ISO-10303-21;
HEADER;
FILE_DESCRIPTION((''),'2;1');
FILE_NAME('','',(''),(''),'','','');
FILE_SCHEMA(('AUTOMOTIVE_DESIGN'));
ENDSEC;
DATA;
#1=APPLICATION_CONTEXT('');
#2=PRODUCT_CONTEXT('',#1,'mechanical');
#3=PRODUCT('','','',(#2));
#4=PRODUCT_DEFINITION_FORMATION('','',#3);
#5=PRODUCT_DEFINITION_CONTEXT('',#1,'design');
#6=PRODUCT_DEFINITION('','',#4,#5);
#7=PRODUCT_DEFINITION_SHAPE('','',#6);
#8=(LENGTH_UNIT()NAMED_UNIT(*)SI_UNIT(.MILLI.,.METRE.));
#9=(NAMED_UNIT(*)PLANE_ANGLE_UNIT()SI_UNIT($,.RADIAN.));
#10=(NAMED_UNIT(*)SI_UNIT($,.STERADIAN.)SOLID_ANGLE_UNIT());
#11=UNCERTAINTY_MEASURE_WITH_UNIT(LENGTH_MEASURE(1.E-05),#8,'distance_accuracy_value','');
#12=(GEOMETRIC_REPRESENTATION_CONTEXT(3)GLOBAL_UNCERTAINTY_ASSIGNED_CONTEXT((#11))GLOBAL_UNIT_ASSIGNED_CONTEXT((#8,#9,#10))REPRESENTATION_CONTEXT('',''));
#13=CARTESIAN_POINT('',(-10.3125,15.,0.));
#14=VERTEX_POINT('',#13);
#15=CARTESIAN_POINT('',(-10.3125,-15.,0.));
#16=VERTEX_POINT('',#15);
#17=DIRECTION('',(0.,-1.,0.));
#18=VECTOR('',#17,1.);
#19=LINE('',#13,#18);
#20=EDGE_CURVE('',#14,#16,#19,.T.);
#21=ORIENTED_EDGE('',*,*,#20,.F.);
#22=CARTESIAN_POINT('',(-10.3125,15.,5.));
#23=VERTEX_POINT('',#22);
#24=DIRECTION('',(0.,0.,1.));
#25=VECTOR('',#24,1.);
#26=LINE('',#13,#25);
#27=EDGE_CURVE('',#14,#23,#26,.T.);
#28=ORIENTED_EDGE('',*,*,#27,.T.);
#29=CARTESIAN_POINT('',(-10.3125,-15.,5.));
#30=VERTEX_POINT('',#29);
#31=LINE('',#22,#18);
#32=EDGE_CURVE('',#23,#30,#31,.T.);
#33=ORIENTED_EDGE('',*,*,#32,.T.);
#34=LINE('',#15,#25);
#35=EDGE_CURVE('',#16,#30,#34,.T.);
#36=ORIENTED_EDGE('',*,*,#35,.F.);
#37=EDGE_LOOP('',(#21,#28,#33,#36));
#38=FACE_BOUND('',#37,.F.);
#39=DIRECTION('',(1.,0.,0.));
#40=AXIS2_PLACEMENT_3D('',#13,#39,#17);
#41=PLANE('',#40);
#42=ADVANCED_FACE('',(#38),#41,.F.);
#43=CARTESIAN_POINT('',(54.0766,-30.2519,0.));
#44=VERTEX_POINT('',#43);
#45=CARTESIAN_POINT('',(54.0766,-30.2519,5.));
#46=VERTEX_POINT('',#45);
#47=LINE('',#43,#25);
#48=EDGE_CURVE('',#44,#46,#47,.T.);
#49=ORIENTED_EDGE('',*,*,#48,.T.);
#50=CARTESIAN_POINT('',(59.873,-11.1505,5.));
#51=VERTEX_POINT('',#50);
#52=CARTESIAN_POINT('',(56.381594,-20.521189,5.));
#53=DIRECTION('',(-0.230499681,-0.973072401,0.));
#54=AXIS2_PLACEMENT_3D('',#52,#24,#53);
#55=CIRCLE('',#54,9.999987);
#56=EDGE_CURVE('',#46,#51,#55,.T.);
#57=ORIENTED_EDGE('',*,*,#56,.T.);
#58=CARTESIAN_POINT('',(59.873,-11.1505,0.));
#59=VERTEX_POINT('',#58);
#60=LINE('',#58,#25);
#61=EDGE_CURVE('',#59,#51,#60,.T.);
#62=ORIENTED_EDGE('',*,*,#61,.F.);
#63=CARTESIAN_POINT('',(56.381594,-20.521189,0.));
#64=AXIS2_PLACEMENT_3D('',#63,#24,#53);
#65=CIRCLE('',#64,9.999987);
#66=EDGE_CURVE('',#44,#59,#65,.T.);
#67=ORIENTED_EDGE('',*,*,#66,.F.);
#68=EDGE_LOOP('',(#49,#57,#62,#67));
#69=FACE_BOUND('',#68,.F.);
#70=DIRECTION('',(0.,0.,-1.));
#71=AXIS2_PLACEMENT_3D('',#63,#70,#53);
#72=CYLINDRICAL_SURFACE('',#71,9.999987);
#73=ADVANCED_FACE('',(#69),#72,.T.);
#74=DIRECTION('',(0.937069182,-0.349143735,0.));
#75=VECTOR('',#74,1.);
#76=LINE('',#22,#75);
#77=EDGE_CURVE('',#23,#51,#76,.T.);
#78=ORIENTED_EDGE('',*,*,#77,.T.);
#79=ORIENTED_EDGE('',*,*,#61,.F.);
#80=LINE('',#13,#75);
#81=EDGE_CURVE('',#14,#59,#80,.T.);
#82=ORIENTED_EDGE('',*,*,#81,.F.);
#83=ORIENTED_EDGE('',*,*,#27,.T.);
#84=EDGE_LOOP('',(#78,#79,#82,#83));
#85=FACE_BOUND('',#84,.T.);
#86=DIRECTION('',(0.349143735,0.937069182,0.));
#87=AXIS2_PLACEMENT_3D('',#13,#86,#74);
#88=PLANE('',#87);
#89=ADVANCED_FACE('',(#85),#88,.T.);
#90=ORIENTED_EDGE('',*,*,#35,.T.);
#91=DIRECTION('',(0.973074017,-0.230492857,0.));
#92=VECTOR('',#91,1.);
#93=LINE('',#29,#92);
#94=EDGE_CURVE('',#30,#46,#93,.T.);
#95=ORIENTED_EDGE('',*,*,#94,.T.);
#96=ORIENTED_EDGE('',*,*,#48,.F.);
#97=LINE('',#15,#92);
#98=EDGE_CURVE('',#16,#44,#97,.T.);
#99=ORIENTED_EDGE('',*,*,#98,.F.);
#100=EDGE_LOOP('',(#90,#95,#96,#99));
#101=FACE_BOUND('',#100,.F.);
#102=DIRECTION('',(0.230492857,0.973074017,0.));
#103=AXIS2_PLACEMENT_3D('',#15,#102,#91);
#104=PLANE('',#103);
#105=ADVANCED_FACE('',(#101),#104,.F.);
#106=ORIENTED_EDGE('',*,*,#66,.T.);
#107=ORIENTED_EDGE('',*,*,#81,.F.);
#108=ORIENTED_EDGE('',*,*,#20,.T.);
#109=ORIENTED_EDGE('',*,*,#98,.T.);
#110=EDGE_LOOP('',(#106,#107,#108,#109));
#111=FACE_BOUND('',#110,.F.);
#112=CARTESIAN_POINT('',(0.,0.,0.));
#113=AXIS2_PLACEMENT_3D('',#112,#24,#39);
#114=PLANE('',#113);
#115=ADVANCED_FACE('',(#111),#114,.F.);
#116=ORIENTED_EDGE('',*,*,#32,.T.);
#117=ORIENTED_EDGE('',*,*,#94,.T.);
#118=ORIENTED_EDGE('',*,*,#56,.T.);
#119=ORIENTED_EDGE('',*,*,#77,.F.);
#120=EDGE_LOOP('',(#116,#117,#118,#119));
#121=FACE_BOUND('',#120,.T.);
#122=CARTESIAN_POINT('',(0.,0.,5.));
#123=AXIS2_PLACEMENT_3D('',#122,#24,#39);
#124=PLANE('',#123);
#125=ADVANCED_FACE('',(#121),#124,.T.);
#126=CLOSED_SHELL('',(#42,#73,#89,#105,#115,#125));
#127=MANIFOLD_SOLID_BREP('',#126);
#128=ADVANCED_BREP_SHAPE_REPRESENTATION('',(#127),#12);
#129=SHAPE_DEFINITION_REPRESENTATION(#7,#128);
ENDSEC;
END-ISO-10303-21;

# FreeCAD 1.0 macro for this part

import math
import FreeCAD as App
import Part
import Sketcher
from FreeCAD import Vector
Q = App.Units.Quantity

doc = App.newDocument("Part")
body = doc.addObject("PartDesign::Body", "Body")

# Sketch on XY plane
sketch1 = body.newObject("Sketcher::SketchObject", "Sketch")
sketch1.AttachmentSupport = (doc.getObject("XY_Plane"), [""])
sketch1.MapMode = "FlatFace"
sketch1.addGeometry([
    Part.LineSegment(Vector(-10.3125, 15, 0), Vector(-10.3125, -15, 0)),  # 0
    Part.LineSegment(Vector(-10.3125, -15, 0), Vector(54.0766, -30.2519, 0)),  # 1
    Part.ArcOfCircle(Part.Circle(Vector(56.3816, -20.5212, 0), Vector(0, 0, 1), 9.999977), math.radians(-103.326541), math.radians(69.565266)),  # 2
    Part.LineSegment(Vector(59.873, -11.1505, 0), Vector(-10.3125, 15, 0)),  # 3
    Part.Circle(Vector(-2.5, -8, 0), Vector(0, 0, 1), 1.55),  # 4
    Part.Circle(Vector(-2.5, 8, 0), Vector(0, 0, 1), 1.55),  # 5
], False)
sketch1.addConstraint([
    Sketcher.Constraint("Coincident", 0, 2, 1, 1),
    Sketcher.Constraint("Tangent", 1, 2, 2, 1),
    Sketcher.Constraint("Tangent", 2, 2, 3, 1),
    Sketcher.Constraint("Coincident", 3, 2, 0, 1),
    Sketcher.Constraint("Vertical", 0),
    Sketcher.Constraint("Equal", 4, 5),
    Sketcher.Constraint("Symmetric", 4, 3, 5, 3, -1),
    Sketcher.Constraint("Radius", 2, Q("10 mm")),
    Sketcher.Constraint("Diameter", 4, Q("3.1 mm")),
    Sketcher.Constraint("DistanceY", 0, 2, 0, 1, Q("30 mm")),
    Sketcher.Constraint("DistanceY", 4, 3, 5, 3, Q("16 mm")),
    Sketcher.Constraint("DistanceY", 0, 2, -1, 1, Q("15 mm")),
    Sketcher.Constraint("DistanceX", 4, 3, -1, 1, Q("2.5 mm")),
    Sketcher.Constraint("Distance", 3, Q("74.899 mm")),
    Sketcher.Constraint("DistanceY", 1, 2, -1, 1, Q("30.252 mm")),
    Sketcher.Constraint("DistanceX", -1, 1, 2, 2, Q("59.873 mm")),
])
pad1 = body.newObject("PartDesign::Pad", "Pad")
pad1.Profile = sketch1
pad1.Length = 5

# Sketch on XY plane
sketch2 = body.newObject("Sketcher::SketchObject", "Sketch001")
sketch2.AttachmentSupport = (doc.getObject("XY_Plane"), [""])
sketch2.MapMode = "FlatFace"
sketch2.AttachmentOffset = App.Placement(Vector(0, 0, 5), App.Rotation())
sketch2.addGeometry([
    Part.Circle(Vector(-2.5, 8, 0), Vector(0, 0, 1), 1.55),
    Part.Circle(Vector(-2.5, -8, 0), Vector(0, 0, 1), 1.55),
], False)
sketch2.addConstraint([
    Sketcher.Constraint("Equal", 0, 1),
    Sketcher.Constraint("Symmetric", 0, 3, 1, 3, -1),
    Sketcher.Constraint("Diameter", 0, Q("3.1 mm")),
    Sketcher.Constraint("DistanceY", -1, 1, 0, 3, Q("8 mm")),
    Sketcher.Constraint("DistanceX", 0, 3, -1, 1, Q("2.5 mm")),
])
pad2 = body.newObject("PartDesign::Pad", "Pad001")
pad2.Profile = sketch2
pad2.Length = 5
pad2.Reversed = True

doc.recompute()
